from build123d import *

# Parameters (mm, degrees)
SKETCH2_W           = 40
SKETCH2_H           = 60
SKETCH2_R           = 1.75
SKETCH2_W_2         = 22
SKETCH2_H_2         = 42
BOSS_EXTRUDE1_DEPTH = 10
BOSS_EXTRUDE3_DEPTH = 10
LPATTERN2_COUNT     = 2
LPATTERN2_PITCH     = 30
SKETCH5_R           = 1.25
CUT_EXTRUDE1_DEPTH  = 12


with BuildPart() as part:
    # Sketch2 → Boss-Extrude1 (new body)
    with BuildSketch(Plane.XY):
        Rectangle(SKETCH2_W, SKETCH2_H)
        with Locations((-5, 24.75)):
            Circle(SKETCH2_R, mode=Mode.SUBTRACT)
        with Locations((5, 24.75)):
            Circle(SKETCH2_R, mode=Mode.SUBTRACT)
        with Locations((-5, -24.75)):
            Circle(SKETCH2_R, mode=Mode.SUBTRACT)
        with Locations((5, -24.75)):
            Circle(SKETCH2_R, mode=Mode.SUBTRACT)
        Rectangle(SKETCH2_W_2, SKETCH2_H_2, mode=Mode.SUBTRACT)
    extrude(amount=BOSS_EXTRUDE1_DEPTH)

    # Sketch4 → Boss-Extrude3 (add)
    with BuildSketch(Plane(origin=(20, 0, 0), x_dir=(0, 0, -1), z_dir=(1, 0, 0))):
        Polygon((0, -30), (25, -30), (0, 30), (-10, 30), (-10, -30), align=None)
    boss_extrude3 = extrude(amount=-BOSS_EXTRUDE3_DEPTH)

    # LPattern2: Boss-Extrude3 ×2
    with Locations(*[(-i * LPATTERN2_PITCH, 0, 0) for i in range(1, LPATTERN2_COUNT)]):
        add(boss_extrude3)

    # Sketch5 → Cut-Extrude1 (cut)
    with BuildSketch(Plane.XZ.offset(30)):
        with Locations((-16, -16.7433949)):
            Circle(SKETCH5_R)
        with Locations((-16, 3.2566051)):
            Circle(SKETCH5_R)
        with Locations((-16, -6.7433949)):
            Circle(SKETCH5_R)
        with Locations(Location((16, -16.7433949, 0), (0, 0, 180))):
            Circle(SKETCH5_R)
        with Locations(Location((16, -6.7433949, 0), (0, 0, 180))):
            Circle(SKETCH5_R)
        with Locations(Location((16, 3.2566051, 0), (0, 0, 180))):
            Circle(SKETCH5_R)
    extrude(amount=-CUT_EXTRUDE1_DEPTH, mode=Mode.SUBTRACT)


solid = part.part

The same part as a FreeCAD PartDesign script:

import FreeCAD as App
import Part
import Sketcher
from FreeCAD import Vector
Q = App.Units.Quantity

doc = App.newDocument("Part")
params = doc.addObject("Spreadsheet::Sheet", "Params")
for row, (alias, value) in enumerate([
    ("sketch1_diameter", "3.5 mm"),
    ("sketch1_width", "40 mm"),
    ("sketch1_width2", "22 mm"),
    ("sketch1_height", "60 mm"),
    ("sketch1_height2", "42 mm"),
    ("pad1_length", "10 mm"),
    ("sketch2_width", "60 mm"),
    ("sketch2_height", "10 mm"),
    ("sketch2_height2", "35 mm"),
    ("pad2_length", "10 mm"),
    ("linearpattern_pitch", "30 mm"),
    ("sketch3_diameter", "2.5 mm"),
    ("pocket1_length", "12 mm"),
], start=1):
    params.set(f"A{row}", alias)
    params.set(f"B{row}", "=" + value)
    params.setAlias(f"B{row}", alias)

body = doc.addObject("PartDesign::Body", "Body")

sketch1 = doc.addObject("Sketcher::SketchObject", "Sketch")
body.addObject(sketch1)
sketch1.AttachmentSupport = (doc.XY_Plane, [""])
sketch1.MapMode = "FlatFace"
sketch1.addGeometry([
    Part.LineSegment(Vector(-20, 30, 0), Vector(-20, -30, 0)),
    Part.LineSegment(Vector(-20, -30, 0), Vector(20, -30, 0)),
    Part.LineSegment(Vector(20, -30, 0), Vector(20, 30, 0)),
    Part.LineSegment(Vector(20, 30, 0), Vector(-20, 30, 0)),
    Part.Circle(Vector(-5, -24.8, 0), Vector(0, 0, 1), 1.8),
    Part.Circle(Vector(5, -24.8, 0), Vector(0, 0, 1), 1.8),
    Part.Circle(Vector(-5, 24.8, 0), Vector(0, 0, 1), 1.8),
    Part.LineSegment(Vector(11, -21, 0), Vector(-11, -21, 0)),
    Part.LineSegment(Vector(-11, -21, 0), Vector(-11, 21, 0)),
    Part.LineSegment(Vector(-11, 21, 0), Vector(11, 21, 0)),
    Part.LineSegment(Vector(11, 21, 0), Vector(11, -21, 0)),
    Part.Circle(Vector(5, 24.8, 0), Vector(0, 0, 1), 1.8),
], False)
sketch1.addConstraint([
    Sketcher.Constraint("Coincident", 0, 2, 1, 1),
    Sketcher.Constraint("Coincident", 1, 2, 2, 1),
    Sketcher.Constraint("Coincident", 2, 2, 3, 1),
    Sketcher.Constraint("Coincident", 3, 2, 0, 1),
    Sketcher.Constraint("Coincident", 7, 2, 8, 1),
    Sketcher.Constraint("Coincident", 8, 2, 9, 1),
    Sketcher.Constraint("Coincident", 9, 2, 10, 1),
    Sketcher.Constraint("Coincident", 10, 2, 7, 1),
    Sketcher.Constraint("Vertical", 0),
    Sketcher.Constraint("Horizontal", 1),
    Sketcher.Constraint("Vertical", 2),
    Sketcher.Constraint("Horizontal", 3),
    Sketcher.Constraint("Horizontal", 7),
    Sketcher.Constraint("Vertical", 8),
    Sketcher.Constraint("Horizontal", 9),
    Sketcher.Constraint("Vertical", 10),
    Sketcher.Constraint("Equal", 4, 5),
    Sketcher.Constraint("Equal", 5, 6),
    Sketcher.Constraint("Equal", 6, 11),
    Sketcher.Constraint("Symmetric", 5, 3, 6, 3, -1, 1),
    Sketcher.Constraint("Symmetric", 4, 3, 11, 3, -1, 1),
    Sketcher.Constraint("Symmetric", 0, 2, 2, 2, -1, 1),
    Sketcher.Constraint("Symmetric", 7, 2, 9, 2, -1, 1),
    Sketcher.Constraint("Symmetric", 4, 3, 5, 3, -2),
    Sketcher.Constraint("Diameter", 4, Q("3.5 mm")),
    Sketcher.Constraint("DistanceX", 1, 1, 1, 2, Q("40 mm")),
    Sketcher.Constraint("DistanceX", 7, 2, 7, 1, Q("22 mm")),
    Sketcher.Constraint("DistanceY", 0, 2, 0, 1, Q("60 mm")),
    Sketcher.Constraint("DistanceY", 8, 1, 8, 2, Q("42 mm")),
    Sketcher.Constraint("DistanceX", 4, 3, -1, 1, Q("5 mm")),
    Sketcher.Constraint("DistanceY", 4, 3, 6, 3, Q("49.5 mm")),
])
sketch1.setExpression("Constraints[24]", "Params.sketch1_diameter")
sketch1.setExpression("Constraints[25]", "Params.sketch1_width")
sketch1.setExpression("Constraints[26]", "Params.sketch1_width2")
sketch1.setExpression("Constraints[27]", "Params.sketch1_height")
sketch1.setExpression("Constraints[28]", "Params.sketch1_height2")
pad1 = doc.addObject("PartDesign::Pad", "Pad")
body.addObject(pad1)
pad1.Profile = sketch1
pad1.setExpression("Length", "Params.pad1_length")

sketch2 = doc.addObject("Sketcher::SketchObject", "Sketch001")
body.addObject(sketch2)
sketch2.AttachmentSupport = (doc.YZ_Plane, [""])
sketch2.MapMode = "FlatFace"
sketch2.AttachmentOffset = App.Placement(Vector(0, 0, 20), App.Rotation())
sketch2.addGeometry([
    Part.LineSegment(Vector(-30, -25, 0), Vector(30, 0, 0)),
    Part.LineSegment(Vector(30, 0, 0), Vector(30, 10, 0)),
    Part.LineSegment(Vector(30, 10, 0), Vector(-30, 10, 0)),
    Part.LineSegment(Vector(-30, 10, 0), Vector(-30, -25, 0)),
], False)
sketch2.addConstraint([
    Sketcher.Constraint("Coincident", 0, 2, 1, 1),
    Sketcher.Constraint("Coincident", 1, 2, 2, 1),
    Sketcher.Constraint("Coincident", 2, 2, 3, 1),
    Sketcher.Constraint("Coincident", 3, 2, 0, 1),
    Sketcher.Constraint("Vertical", 1),
    Sketcher.Constraint("Horizontal", 2),
    Sketcher.Constraint("Vertical", 3),
    Sketcher.Constraint("PointOnObject", 0, 2, -1),
    Sketcher.Constraint("DistanceX", 2, 2, 2, 1, Q("60 mm")),
    Sketcher.Constraint("DistanceY", 1, 1, 1, 2, Q("10 mm")),
    Sketcher.Constraint("DistanceY", 3, 2, 3, 1, Q("35 mm")),
    Sketcher.Constraint("DistanceX", -1, 1, 0, 2, Q("30 mm")),
])
sketch2.setExpression("Constraints[8]", "Params.sketch2_width")
sketch2.setExpression("Constraints[9]", "Params.sketch2_height")
sketch2.setExpression("Constraints[10]", "Params.sketch2_height2")
pad2 = doc.addObject("PartDesign::Pad", "Pad001")
body.addObject(pad2)
pad2.Profile = sketch2
pad2.setExpression("Length", "Params.pad2_length")
pad2.Reversed = True
doc.recompute()

linearpattern = doc.addObject("PartDesign::LinearPattern", "LinearPattern")
body.addObject(linearpattern)
linearpattern.Originals = [pad2]
linearpattern.Direction = (doc.X_Axis, [""])
linearpattern.Mode = "offset"
linearpattern.setExpression("Offset", "Params.linearpattern_pitch")
linearpattern.Occurrences = 2
linearpattern.Reversed = True
body.Tip = linearpattern

sketch3 = doc.addObject("Sketcher::SketchObject", "Sketch002")
body.addObject(sketch3)
sketch3.AttachmentSupport = (doc.XZ_Plane, [""])
sketch3.MapMode = "FlatFace"
sketch3.AttachmentOffset = App.Placement(Vector(0, 0, 30), App.Rotation())
sketch3.addGeometry([
    Part.Circle(Vector(-16, -16.7, 0), Vector(0, 0, 1), 1.2),
    Part.Circle(Vector(-16, 3.3, 0), Vector(0, 0, 1), 1.2),
    Part.Circle(Vector(-16, -6.7, 0), Vector(0, 0, 1), 1.2),
    Part.Circle(Vector(16, -16.7, 0), Vector(0, 0, 1), 1.2),
    Part.Circle(Vector(16, -6.7, 0), Vector(0, 0, 1), 1.2),
    Part.Circle(Vector(16, 3.3, 0), Vector(0, 0, 1), 1.2),
], False)
sketch3.addConstraint([
    Sketcher.Constraint("Equal", 0, 1),
    Sketcher.Constraint("Equal", 1, 2),
    Sketcher.Constraint("Equal", 2, 3),
    Sketcher.Constraint("Equal", 3, 4),
    Sketcher.Constraint("Equal", 4, 5),
    Sketcher.Constraint("Symmetric", 0, 3, 3, 3, -2),
    Sketcher.Constraint("Symmetric", 2, 3, 4, 3, -2),
    Sketcher.Constraint("Symmetric", 1, 3, 5, 3, -2),
    Sketcher.Constraint("Vertical", 0, 3, 1, 3),
    Sketcher.Constraint("Vertical", 1, 3, 2, 3),
    Sketcher.Constraint("Diameter", 0, Q("2.5 mm")),
    Sketcher.Constraint("DistanceX", 0, 3, -1, 1, Q("16 mm")),
    Sketcher.Constraint("DistanceY", 0, 3, 1, 3, Q("20 mm")),
    Sketcher.Constraint("DistanceY", 0, 3, 2, 3, Q("10 mm")),
    Sketcher.Constraint("DistanceY", 0, 3, -1, 1, Q("16.743395 mm")),
])
sketch3.setExpression("Constraints[10]", "Params.sketch3_diameter")
pocket1 = doc.addObject("PartDesign::Pocket", "Pocket")
body.addObject(pocket1)
pocket1.Profile = sketch3
pocket1.setExpression("Length", "Params.pocket1_length")

doc.recompute()
